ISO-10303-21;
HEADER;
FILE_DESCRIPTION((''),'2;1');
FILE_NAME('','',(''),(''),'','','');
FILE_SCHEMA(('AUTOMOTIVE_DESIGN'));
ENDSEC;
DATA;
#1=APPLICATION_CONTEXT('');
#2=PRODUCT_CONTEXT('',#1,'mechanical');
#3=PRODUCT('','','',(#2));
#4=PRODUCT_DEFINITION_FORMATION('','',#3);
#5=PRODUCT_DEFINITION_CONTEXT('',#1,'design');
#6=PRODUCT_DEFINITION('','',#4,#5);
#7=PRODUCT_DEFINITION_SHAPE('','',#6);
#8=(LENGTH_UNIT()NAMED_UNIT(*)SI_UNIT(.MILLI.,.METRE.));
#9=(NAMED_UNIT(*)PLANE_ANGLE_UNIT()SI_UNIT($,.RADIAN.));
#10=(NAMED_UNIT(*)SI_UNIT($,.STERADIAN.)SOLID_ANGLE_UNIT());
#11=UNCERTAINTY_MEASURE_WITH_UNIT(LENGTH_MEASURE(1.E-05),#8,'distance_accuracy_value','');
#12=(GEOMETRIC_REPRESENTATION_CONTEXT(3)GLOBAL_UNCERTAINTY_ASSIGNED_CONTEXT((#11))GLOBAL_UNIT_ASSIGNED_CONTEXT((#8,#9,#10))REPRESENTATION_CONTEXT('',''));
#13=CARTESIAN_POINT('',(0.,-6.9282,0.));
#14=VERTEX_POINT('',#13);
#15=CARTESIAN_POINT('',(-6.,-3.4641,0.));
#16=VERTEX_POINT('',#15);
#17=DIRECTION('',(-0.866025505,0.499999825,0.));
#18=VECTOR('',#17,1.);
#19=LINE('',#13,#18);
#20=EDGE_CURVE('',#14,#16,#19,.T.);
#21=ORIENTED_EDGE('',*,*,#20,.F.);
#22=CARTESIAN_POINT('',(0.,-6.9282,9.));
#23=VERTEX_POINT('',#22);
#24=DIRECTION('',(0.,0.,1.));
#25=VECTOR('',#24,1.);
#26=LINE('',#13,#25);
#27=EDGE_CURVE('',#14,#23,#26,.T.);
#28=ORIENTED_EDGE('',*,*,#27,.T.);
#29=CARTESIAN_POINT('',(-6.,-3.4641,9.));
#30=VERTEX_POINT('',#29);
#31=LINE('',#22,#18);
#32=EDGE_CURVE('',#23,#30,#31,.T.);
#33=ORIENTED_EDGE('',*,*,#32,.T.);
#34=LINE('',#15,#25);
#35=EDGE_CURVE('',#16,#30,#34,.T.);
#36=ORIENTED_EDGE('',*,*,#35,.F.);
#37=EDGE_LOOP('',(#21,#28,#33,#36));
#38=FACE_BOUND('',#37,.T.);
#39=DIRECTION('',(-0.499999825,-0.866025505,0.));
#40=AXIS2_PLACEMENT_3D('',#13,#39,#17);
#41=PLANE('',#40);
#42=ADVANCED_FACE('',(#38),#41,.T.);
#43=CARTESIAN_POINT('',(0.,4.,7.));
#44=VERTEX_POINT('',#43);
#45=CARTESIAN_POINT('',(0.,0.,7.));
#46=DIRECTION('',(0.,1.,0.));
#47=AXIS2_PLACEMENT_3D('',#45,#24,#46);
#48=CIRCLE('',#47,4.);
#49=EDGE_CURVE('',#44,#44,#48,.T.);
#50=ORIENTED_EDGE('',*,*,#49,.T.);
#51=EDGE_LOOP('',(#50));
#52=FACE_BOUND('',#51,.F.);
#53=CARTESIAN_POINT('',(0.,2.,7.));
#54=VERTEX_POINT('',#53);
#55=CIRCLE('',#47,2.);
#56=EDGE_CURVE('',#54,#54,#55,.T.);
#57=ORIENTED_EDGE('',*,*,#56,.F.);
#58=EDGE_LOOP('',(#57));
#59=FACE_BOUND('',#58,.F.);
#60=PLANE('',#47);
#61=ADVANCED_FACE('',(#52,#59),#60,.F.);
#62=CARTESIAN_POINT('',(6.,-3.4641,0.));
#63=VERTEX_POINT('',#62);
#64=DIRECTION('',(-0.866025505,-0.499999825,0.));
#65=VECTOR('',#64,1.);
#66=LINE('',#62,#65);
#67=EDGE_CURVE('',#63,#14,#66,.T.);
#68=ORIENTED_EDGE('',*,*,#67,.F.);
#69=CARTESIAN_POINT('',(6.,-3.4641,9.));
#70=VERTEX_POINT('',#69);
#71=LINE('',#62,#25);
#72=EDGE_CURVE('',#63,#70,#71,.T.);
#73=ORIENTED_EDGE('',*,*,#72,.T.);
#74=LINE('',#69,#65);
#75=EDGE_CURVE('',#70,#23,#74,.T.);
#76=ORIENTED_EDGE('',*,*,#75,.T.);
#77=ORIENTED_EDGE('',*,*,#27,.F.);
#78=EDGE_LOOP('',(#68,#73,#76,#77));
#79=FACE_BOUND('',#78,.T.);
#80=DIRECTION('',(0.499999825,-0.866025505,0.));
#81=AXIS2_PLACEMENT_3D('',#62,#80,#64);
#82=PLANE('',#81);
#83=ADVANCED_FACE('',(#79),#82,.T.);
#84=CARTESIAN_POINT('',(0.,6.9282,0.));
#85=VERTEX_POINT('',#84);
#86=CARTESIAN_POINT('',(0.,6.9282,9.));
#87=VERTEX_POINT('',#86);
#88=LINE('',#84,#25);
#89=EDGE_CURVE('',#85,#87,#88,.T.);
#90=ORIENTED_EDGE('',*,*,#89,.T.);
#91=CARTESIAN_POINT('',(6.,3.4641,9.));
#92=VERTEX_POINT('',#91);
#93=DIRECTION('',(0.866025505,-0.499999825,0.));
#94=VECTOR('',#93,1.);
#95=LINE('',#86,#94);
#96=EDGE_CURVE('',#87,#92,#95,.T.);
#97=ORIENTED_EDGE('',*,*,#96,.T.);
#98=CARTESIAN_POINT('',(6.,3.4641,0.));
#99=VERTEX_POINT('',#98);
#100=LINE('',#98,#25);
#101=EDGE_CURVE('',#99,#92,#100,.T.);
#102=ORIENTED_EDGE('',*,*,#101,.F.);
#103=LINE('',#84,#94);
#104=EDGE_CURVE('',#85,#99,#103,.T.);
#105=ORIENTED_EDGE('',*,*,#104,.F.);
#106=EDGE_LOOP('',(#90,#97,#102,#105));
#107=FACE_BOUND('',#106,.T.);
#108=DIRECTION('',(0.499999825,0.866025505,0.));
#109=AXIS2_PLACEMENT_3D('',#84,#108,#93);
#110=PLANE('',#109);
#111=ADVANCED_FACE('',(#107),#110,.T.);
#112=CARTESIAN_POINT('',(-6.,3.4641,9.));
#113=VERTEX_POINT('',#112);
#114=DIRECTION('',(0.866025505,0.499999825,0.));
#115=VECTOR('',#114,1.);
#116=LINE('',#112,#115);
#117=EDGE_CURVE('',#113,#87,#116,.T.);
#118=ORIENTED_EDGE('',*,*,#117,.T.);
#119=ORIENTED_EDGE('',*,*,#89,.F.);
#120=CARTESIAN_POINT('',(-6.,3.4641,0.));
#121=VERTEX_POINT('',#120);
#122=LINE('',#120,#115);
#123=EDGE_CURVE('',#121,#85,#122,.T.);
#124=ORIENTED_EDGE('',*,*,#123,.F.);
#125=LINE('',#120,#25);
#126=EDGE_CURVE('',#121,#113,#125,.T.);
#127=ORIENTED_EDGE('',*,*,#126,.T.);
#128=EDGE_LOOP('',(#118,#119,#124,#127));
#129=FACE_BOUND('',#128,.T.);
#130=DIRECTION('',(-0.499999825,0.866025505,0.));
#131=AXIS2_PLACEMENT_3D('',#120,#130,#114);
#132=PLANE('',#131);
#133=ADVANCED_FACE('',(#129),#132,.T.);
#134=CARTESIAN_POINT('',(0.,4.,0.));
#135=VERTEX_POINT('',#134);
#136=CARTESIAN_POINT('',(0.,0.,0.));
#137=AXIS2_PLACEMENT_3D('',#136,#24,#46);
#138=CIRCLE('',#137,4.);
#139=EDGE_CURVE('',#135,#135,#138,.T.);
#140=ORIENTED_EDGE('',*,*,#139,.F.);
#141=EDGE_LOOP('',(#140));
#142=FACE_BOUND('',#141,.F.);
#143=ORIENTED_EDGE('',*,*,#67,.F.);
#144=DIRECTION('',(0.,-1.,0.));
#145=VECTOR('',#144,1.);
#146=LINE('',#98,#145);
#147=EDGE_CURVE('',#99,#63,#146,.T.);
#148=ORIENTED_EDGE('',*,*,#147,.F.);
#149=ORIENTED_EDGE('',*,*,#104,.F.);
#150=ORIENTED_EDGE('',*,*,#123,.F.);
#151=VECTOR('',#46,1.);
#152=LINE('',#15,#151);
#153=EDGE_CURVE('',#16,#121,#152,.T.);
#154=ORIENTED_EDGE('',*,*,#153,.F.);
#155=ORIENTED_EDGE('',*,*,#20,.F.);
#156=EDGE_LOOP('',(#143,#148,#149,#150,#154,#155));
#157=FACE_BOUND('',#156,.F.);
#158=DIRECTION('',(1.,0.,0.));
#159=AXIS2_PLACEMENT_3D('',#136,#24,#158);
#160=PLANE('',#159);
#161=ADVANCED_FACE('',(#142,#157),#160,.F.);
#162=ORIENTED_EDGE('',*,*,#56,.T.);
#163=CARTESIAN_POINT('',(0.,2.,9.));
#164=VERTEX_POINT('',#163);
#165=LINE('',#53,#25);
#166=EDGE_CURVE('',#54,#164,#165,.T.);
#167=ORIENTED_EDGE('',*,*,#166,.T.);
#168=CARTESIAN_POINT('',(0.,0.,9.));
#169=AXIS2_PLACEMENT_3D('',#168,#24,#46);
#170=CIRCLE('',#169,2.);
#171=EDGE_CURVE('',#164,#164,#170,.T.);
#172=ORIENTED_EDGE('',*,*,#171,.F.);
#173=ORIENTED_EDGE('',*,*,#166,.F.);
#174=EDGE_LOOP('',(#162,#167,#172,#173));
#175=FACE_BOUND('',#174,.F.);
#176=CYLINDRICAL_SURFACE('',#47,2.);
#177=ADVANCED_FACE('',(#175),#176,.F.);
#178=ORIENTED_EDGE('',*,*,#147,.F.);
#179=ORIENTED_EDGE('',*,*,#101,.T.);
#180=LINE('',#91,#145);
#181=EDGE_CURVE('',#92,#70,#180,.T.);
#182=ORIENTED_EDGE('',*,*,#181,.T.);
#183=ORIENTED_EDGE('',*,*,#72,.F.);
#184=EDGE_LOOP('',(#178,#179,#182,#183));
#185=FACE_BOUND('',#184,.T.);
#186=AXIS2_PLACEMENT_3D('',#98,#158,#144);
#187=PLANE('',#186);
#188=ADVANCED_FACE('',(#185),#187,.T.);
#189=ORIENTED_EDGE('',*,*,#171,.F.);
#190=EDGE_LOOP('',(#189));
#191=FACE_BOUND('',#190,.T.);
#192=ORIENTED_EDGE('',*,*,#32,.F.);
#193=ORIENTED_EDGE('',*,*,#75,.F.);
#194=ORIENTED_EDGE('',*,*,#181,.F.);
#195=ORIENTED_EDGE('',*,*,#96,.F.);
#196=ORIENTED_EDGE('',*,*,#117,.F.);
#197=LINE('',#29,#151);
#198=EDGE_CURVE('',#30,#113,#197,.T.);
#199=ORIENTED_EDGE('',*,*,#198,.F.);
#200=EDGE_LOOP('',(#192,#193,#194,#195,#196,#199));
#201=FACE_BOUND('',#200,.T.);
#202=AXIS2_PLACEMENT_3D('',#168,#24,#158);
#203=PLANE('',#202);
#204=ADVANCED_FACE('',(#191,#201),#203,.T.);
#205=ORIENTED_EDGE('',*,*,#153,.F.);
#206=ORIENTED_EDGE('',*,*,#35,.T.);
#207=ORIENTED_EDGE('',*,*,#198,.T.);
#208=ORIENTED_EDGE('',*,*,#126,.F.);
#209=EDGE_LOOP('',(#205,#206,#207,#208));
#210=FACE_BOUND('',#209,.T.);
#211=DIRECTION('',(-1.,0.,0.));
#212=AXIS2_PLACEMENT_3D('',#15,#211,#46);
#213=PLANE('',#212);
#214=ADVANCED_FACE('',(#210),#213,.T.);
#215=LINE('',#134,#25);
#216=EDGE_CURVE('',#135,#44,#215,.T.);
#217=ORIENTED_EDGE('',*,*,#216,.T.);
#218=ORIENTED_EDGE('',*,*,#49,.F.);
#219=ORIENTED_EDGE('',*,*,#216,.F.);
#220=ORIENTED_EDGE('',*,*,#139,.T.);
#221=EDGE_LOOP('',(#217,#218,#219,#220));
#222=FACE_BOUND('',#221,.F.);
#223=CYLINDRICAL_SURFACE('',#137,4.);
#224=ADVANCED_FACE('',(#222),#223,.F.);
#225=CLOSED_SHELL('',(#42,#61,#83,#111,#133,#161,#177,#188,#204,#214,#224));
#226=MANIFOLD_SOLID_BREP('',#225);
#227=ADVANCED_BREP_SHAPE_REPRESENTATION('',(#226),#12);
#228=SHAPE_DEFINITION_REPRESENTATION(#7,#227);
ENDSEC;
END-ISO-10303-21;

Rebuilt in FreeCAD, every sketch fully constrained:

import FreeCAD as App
import Part
import Sketcher
from FreeCAD import Vector
Q = App.Units.Quantity

doc = App.newDocument("Part")
body = doc.addObject("PartDesign::Body", "Body")

# Sketch on XY plane
sketch1 = body.newObject("Sketcher::SketchObject", "Sketch")
sketch1.AttachmentSupport = (doc.getObject("XY_Plane"), [""])
sketch1.MapMode = "FlatFace"
sketch1.addGeometry([
    Part.LineSegment(Vector(-6, -3, 0), Vector(0, -7, 0)),  # 0
    Part.LineSegment(Vector(0, -7, 0), Vector(6, -3, 0)),  # 1
    Part.LineSegment(Vector(6, -3, 0), Vector(6, 3, 0)),  # 2
    Part.LineSegment(Vector(6, 3, 0), Vector(0, 7, 0)),  # 3
    Part.LineSegment(Vector(0, 7, 0), Vector(-6, 3, 0)),  # 4
    Part.LineSegment(Vector(-6, 3, 0), Vector(-6, -3, 0)),  # 5
], False)
sketch1.addConstraint([
    Sketcher.Constraint("Coincident", 0, 2, 1, 1),
    Sketcher.Constraint("Coincident", 1, 2, 2, 1),
    Sketcher.Constraint("Coincident", 2, 2, 3, 1),
    Sketcher.Constraint("Coincident", 3, 2, 4, 1),
    Sketcher.Constraint("Coincident", 4, 2, 5, 1),
    Sketcher.Constraint("Coincident", 5, 2, 0, 1),
    Sketcher.Constraint("Vertical", 2),
    Sketcher.Constraint("Vertical", 5),
    Sketcher.Constraint("Symmetric", 0, 2, 3, 2, -1, 1),
    Sketcher.Constraint("Symmetric", 1, 2, 4, 2, -1, 1),
    Sketcher.Constraint("PointOnObject", 0, 2, -2),
    Sketcher.Constraint("Parallel", 0, 3),
    Sketcher.Constraint("Horizontal", 2, 2, 4, 2),
    Sketcher.Constraint("DistanceX", 4, 2, 2, 2, 12.0),
    Sketcher.Constraint("Angle", 0, Q("-30 deg")),
    Sketcher.Constraint("DistanceY", 2, 1, 2, 2, 6.9282),
])
pad1 = body.newObject("PartDesign::Pad", "Pad")
pad1.Profile = sketch1
pad1.Length = 9

# Sketch on XY plane
sketch2 = body.newObject("Sketcher::SketchObject", "Sketch001")
sketch2.AttachmentSupport = (doc.getObject("XY_Plane"), [""])
sketch2.MapMode = "FlatFace"
sketch2.addGeometry(Part.Circle(Vector(0, 0, 0), Vector(0, 0, 1), 2), False)
sketch2.addConstraint([
    Sketcher.Constraint("Coincident", 0, 3, -1, 1),
    Sketcher.Constraint("Diameter", 0, 4.0),
])
doc.recompute()
hole = body.newObject("PartDesign::Hole", "Hole")
hole.Profile = sketch2
hole.ThreadType = "None"
hole.Diameter = 4
hole.DepthType = "ThroughAll"
hole.HoleCutType = "Counterbore"
hole.HoleCutDiameter = 8
hole.HoleCutDepth = 7
hole.Reversed = True

doc.recompute()
